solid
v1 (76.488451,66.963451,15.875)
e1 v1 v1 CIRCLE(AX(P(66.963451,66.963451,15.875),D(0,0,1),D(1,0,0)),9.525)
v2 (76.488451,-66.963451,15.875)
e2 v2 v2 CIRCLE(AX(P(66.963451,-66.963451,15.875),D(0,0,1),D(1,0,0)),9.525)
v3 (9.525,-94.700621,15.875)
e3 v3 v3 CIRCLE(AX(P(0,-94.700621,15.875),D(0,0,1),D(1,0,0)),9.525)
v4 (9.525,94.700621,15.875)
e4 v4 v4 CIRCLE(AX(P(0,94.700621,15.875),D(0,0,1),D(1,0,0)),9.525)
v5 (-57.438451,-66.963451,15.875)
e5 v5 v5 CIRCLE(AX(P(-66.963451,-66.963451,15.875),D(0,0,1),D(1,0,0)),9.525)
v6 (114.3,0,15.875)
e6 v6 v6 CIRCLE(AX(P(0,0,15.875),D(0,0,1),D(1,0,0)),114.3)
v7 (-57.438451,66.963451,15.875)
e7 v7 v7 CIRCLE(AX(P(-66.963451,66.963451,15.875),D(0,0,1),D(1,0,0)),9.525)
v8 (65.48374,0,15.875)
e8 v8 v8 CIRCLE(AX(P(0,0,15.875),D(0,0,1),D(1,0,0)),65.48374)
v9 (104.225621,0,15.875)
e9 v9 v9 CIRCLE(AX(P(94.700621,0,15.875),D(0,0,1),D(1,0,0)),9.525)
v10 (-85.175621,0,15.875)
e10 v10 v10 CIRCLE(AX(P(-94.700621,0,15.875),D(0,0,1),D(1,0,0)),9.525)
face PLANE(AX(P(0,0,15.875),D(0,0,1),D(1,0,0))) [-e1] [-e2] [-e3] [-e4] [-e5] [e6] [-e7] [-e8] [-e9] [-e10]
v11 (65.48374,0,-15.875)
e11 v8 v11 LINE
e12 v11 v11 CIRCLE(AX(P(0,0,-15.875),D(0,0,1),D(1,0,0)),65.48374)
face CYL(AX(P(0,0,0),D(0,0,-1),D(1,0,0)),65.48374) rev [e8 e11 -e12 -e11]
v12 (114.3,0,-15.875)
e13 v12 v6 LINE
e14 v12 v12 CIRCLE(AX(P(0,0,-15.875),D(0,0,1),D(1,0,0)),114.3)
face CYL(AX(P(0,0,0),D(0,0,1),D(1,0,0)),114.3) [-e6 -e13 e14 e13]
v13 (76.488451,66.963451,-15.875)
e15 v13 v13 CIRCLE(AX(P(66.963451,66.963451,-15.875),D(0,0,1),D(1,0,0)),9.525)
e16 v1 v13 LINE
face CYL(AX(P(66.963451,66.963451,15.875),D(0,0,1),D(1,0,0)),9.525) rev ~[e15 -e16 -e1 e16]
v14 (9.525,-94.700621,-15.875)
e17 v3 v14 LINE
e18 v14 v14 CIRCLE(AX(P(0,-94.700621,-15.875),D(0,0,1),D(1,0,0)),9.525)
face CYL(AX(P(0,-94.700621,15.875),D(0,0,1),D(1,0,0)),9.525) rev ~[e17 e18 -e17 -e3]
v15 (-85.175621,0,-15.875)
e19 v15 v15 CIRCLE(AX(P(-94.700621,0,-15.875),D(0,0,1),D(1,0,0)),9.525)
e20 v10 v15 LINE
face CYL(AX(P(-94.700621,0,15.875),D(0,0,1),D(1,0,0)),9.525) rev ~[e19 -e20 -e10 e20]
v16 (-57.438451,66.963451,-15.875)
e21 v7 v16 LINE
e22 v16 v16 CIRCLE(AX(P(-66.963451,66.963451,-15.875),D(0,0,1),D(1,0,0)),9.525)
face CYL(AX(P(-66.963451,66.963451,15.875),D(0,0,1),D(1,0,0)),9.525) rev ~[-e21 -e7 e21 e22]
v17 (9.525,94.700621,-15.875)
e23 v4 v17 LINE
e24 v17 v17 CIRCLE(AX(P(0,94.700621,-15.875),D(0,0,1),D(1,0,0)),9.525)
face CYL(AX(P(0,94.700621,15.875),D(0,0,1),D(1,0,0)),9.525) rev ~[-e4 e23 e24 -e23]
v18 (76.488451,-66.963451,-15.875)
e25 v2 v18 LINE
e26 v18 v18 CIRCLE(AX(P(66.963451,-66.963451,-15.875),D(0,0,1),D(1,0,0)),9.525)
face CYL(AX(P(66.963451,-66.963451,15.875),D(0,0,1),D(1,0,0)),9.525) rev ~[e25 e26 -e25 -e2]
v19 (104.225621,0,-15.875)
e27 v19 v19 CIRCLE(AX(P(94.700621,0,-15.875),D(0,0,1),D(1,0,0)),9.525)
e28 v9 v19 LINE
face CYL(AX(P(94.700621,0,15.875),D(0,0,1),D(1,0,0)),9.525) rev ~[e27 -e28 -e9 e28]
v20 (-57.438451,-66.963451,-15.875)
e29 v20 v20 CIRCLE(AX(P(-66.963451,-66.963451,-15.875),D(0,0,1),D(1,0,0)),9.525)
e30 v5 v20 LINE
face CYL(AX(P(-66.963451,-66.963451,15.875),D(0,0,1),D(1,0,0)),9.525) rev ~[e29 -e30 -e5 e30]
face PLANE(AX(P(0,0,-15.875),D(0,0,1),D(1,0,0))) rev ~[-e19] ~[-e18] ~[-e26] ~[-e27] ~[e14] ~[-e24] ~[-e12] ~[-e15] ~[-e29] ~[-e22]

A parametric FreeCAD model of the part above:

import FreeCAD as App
import Part
import Sketcher

V = App.Vector
Q = App.Units.Quantity

doc = App.newDocument("Part")
body = doc.addObject("PartDesign::Body", "Body")

sketch1 = doc.addObject("Sketcher::SketchObject", "Sketch")
body.addObject(sketch1)
sketch1.AttachmentSupport = (doc.XY_Plane, [""])
sketch1.MapMode = "FlatFace"
sketch1.addGeometry([
    Part.Circle(V(0, 0, 0), V(0, 0, 1), 114),
    Part.Circle(V(0, 0, 0), V(0, 0, 1), 65),
], False)
sketch1.addConstraint([
    Sketcher.Constraint("Coincident", 0, 3, -1, 1),
    Sketcher.Constraint("Coincident", 1, 3, -1, 1),
    Sketcher.Constraint("Diameter", 0, Q("9 in")),
    Sketcher.Constraint("Diameter", 1, Q("5.1562 in")),
])
pad1 = doc.addObject("PartDesign::Pad", "Pad")
body.addObject(pad1)
pad1.Profile = sketch1
pad1.Length = Q("1.25 in")
pad1.Midplane = True

sketch2 = doc.addObject("Sketcher::SketchObject", "Sketch001")
body.addObject(sketch2)
sketch2.AttachmentSupport = (doc.XY_Plane, [""])
sketch2.MapMode = "FlatFace"
sketch2.AttachmentOffset = App.Placement(V(0, 0, 0.625 * 25.4), App.Rotation())
sketch2.addGeometry([
    Part.Circle(V(0, 95, 0), V(0, 0, 1), 10),
    Part.Circle(V(-67, 67, 0), V(0, 0, 1), 10),
    Part.Circle(V(-95, 0, 0), V(0, 0, 1), 10),
    Part.Circle(V(-67, -67, 0), V(0, 0, 1), 10),
    Part.Circle(V(0, -95, 0), V(0, 0, 1), 10),
    Part.Circle(V(67, -67, 0), V(0, 0, 1), 10),
    Part.Circle(V(95, 0, 0), V(0, 0, 1), 10),
    Part.Circle(V(67, 67, 0), V(0, 0, 1), 10),
], False)
sketch2.addConstraint([
    Sketcher.Constraint("Equal", 0, 1),
    Sketcher.Constraint("Equal", 1, 2),
    Sketcher.Constraint("Equal", 2, 3),
    Sketcher.Constraint("Equal", 3, 4),
    Sketcher.Constraint("Equal", 4, 5),
    Sketcher.Constraint("Equal", 5, 6),
    Sketcher.Constraint("Equal", 6, 7),
    Sketcher.Constraint("Symmetric", 0, 3, 4, 3, -1, 1),
    Sketcher.Constraint("Symmetric", 1, 3, 5, 3, -1, 1),
    Sketcher.Constraint("Symmetric", 2, 3, 6, 3, -1, 1),
    Sketcher.Constraint("Symmetric", 3, 3, 7, 3, -1, 1),
    Sketcher.Constraint("Symmetric", 3, 3, 5, 3, -2),
    Sketcher.Constraint("PointOnObject", 0, 3, -2),
    Sketcher.Constraint("PointOnObject", 2, 3, -1),
    Sketcher.Constraint("Diameter", 0, Q("0.75 in")),
    Sketcher.Constraint("DistanceY", -1, 1, 0, 3, Q("94.700621 mm")),
    Sketcher.Constraint("DistanceX", 1, 3, -1, 1, Q("66.963451 mm")),
    Sketcher.Constraint("DistanceY", -1, 1, 1, 3, Q("66.963451 mm")),
    Sketcher.Constraint("DistanceX", 2, 3, -1, 1, Q("94.700621 mm")),
])
pocket1 = doc.addObject("PartDesign::Pocket", "Pocket")
body.addObject(pocket1)
pocket1.Profile = sketch2
pocket1.Type = "ThroughAll"

doc.recompute()
